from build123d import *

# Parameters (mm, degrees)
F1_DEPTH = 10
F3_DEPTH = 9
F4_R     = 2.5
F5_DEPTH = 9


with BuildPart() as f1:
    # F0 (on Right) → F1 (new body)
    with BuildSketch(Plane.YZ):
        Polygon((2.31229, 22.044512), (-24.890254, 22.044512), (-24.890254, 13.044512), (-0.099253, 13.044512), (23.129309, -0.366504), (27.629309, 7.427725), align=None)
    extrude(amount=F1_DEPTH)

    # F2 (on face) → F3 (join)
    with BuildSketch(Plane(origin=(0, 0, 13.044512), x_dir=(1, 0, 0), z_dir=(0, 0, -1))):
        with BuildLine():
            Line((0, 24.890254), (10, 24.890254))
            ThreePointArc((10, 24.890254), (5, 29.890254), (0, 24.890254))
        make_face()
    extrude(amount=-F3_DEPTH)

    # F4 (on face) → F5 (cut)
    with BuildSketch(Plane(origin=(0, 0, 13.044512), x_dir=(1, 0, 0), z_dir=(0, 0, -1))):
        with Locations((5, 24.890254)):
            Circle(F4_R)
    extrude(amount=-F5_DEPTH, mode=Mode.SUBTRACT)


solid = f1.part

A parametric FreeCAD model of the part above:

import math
import FreeCAD as App
import Part
import Sketcher
from FreeCAD import Vector
Q = App.Units.Quantity

doc = App.newDocument("Part")
body = doc.addObject("PartDesign::Body", "Body")

sketch1 = doc.addObject("Sketcher::SketchObject", "Sketch")
body.addObject(sketch1)
sketch1.AttachmentSupport = (doc.YZ_Plane, [""])
sketch1.MapMode = "FlatFace"
sketch1.addGeometry(Part.LineSegment(Vector(2, 22, 0), Vector(-25, 22, 0)), False)
sketch1.addGeometry(Part.LineSegment(Vector(-25, 22, 0), Vector(-25, 13, 0)), False)
sketch1.addGeometry(Part.LineSegment(Vector(-25, 13, 0), Vector(0, 13, 0)), False)
sketch1.addGeometry(Part.LineSegment(Vector(0, 13, 0), Vector(23, 0, 0)), False)
sketch1.addGeometry(Part.LineSegment(Vector(23, 0, 0), Vector(28, 7, 0)), False)
sketch1.addGeometry(Part.LineSegment(Vector(28, 7, 0), Vector(2, 22, 0)), False)
sketch1.addConstraint(Sketcher.Constraint("Coincident", 0, 2, 1, 1))
sketch1.addConstraint(Sketcher.Constraint("Coincident", 1, 2, 2, 1))
sketch1.addConstraint(Sketcher.Constraint("Coincident", 2, 2, 3, 1))
sketch1.addConstraint(Sketcher.Constraint("Coincident", 3, 2, 4, 1))
sketch1.addConstraint(Sketcher.Constraint("Coincident", 4, 2, 5, 1))
sketch1.addConstraint(Sketcher.Constraint("Coincident", 5, 2, 0, 1))
sketch1.addConstraint(Sketcher.Constraint("Horizontal", 0))
sketch1.addConstraint(Sketcher.Constraint("Vertical", 1))
sketch1.addConstraint(Sketcher.Constraint("Horizontal", 2))
sketch1.addConstraint(Sketcher.Constraint("Perpendicular", 3, 4))
sketch1.addConstraint(Sketcher.Constraint("Perpendicular", 4, 5))
sketch1.addConstraint(Sketcher.Constraint("DistanceY", 1, 2, 1, 1, Q("9 mm")))
sketch1.addConstraint(Sketcher.Constraint("Angle", 3, Q("-29.999999 deg")))
sketch1.addConstraint(Sketcher.Constraint("Distance", 4, Q("9 mm")))
sketch1.addConstraint(Sketcher.Constraint("DistanceX", 2, 1, 2, 2, Q("24.791001 mm")))
sketch1.addConstraint(Sketcher.Constraint("DistanceY", -1, 1, 1, 2, Q("13.044512 mm")))
sketch1.addConstraint(Sketcher.Constraint("DistanceX", -1, 1, 3, 2, Q("23.129309 mm")))
sketch1.addConstraint(Sketcher.Constraint("DistanceX", -1, 1, 5, 2, Q("2.31229 mm")))
pad1 = doc.addObject("PartDesign::Pad", "Pad")
body.addObject(pad1)
pad1.Profile = sketch1
pad1.Length = 10

sketch2 = doc.addObject("Sketcher::SketchObject", "Sketch001")
body.addObject(sketch2)
sketch2.AttachmentSupport = (doc.XY_Plane, [""])
sketch2.MapMode = "FlatFace"
sketch2.AttachmentOffset = App.Placement(Vector(0, 0, 13.044512), App.Rotation())
sketch2.addGeometry(Part.LineSegment(Vector(0, -25, 0), Vector(10, -25, 0)), False)
sketch2.addGeometry(Part.ArcOfCircle(Part.Circle(Vector(5, -25, 0), Vector(0, 0, 1), 5), math.radians(180), math.radians(360)), False)
sketch2.addConstraint(Sketcher.Constraint("Coincident", 0, 1, 1, 1))
sketch2.addConstraint(Sketcher.Constraint("Coincident", 1, 2, 0, 2))
sketch2.addConstraint(Sketcher.Constraint("Horizontal", 0))
sketch2.addConstraint(Sketcher.Constraint("PointOnObject", 0, 1, -2))
sketch2.addConstraint(Sketcher.Constraint("Horizontal", 1, 3, 0, 1))
sketch2.addConstraint(Sketcher.Constraint("Radius", 1, Q("5 mm")))
sketch2.addConstraint(Sketcher.Constraint("DistanceY", 1, 3, -1, 1, Q("24.890254 mm")))
pad2 = doc.addObject("PartDesign::Pad", "Pad001")
body.addObject(pad2)
pad2.Profile = sketch2
pad2.Length = 9

sketch3 = doc.addObject("Sketcher::SketchObject", "Sketch002")
body.addObject(sketch3)
sketch3.AttachmentSupport = (doc.XY_Plane, [""])
sketch3.MapMode = "FlatFace"
sketch3.AttachmentOffset = App.Placement(Vector(0, 0, 13.044512), App.Rotation())
sketch3.addGeometry(Part.Circle(Vector(5, -24.9, 0), Vector(0, 0, 1), 2.5), False)
sketch3.addConstraint(Sketcher.Constraint("Diameter", 0, Q("5 mm")))
sketch3.addConstraint(Sketcher.Constraint("DistanceX", -1, 1, 0, 3, Q("5 mm")))
sketch3.addConstraint(Sketcher.Constraint("DistanceY", 0, 3, -1, 1, Q("24.890254 mm")))
pocket1 = doc.addObject("PartDesign::Pocket", "Pocket")
body.addObject(pocket1)
pocket1.Profile = sketch3
pocket1.Length = 9
pocket1.Reversed = True

doc.recompute()
